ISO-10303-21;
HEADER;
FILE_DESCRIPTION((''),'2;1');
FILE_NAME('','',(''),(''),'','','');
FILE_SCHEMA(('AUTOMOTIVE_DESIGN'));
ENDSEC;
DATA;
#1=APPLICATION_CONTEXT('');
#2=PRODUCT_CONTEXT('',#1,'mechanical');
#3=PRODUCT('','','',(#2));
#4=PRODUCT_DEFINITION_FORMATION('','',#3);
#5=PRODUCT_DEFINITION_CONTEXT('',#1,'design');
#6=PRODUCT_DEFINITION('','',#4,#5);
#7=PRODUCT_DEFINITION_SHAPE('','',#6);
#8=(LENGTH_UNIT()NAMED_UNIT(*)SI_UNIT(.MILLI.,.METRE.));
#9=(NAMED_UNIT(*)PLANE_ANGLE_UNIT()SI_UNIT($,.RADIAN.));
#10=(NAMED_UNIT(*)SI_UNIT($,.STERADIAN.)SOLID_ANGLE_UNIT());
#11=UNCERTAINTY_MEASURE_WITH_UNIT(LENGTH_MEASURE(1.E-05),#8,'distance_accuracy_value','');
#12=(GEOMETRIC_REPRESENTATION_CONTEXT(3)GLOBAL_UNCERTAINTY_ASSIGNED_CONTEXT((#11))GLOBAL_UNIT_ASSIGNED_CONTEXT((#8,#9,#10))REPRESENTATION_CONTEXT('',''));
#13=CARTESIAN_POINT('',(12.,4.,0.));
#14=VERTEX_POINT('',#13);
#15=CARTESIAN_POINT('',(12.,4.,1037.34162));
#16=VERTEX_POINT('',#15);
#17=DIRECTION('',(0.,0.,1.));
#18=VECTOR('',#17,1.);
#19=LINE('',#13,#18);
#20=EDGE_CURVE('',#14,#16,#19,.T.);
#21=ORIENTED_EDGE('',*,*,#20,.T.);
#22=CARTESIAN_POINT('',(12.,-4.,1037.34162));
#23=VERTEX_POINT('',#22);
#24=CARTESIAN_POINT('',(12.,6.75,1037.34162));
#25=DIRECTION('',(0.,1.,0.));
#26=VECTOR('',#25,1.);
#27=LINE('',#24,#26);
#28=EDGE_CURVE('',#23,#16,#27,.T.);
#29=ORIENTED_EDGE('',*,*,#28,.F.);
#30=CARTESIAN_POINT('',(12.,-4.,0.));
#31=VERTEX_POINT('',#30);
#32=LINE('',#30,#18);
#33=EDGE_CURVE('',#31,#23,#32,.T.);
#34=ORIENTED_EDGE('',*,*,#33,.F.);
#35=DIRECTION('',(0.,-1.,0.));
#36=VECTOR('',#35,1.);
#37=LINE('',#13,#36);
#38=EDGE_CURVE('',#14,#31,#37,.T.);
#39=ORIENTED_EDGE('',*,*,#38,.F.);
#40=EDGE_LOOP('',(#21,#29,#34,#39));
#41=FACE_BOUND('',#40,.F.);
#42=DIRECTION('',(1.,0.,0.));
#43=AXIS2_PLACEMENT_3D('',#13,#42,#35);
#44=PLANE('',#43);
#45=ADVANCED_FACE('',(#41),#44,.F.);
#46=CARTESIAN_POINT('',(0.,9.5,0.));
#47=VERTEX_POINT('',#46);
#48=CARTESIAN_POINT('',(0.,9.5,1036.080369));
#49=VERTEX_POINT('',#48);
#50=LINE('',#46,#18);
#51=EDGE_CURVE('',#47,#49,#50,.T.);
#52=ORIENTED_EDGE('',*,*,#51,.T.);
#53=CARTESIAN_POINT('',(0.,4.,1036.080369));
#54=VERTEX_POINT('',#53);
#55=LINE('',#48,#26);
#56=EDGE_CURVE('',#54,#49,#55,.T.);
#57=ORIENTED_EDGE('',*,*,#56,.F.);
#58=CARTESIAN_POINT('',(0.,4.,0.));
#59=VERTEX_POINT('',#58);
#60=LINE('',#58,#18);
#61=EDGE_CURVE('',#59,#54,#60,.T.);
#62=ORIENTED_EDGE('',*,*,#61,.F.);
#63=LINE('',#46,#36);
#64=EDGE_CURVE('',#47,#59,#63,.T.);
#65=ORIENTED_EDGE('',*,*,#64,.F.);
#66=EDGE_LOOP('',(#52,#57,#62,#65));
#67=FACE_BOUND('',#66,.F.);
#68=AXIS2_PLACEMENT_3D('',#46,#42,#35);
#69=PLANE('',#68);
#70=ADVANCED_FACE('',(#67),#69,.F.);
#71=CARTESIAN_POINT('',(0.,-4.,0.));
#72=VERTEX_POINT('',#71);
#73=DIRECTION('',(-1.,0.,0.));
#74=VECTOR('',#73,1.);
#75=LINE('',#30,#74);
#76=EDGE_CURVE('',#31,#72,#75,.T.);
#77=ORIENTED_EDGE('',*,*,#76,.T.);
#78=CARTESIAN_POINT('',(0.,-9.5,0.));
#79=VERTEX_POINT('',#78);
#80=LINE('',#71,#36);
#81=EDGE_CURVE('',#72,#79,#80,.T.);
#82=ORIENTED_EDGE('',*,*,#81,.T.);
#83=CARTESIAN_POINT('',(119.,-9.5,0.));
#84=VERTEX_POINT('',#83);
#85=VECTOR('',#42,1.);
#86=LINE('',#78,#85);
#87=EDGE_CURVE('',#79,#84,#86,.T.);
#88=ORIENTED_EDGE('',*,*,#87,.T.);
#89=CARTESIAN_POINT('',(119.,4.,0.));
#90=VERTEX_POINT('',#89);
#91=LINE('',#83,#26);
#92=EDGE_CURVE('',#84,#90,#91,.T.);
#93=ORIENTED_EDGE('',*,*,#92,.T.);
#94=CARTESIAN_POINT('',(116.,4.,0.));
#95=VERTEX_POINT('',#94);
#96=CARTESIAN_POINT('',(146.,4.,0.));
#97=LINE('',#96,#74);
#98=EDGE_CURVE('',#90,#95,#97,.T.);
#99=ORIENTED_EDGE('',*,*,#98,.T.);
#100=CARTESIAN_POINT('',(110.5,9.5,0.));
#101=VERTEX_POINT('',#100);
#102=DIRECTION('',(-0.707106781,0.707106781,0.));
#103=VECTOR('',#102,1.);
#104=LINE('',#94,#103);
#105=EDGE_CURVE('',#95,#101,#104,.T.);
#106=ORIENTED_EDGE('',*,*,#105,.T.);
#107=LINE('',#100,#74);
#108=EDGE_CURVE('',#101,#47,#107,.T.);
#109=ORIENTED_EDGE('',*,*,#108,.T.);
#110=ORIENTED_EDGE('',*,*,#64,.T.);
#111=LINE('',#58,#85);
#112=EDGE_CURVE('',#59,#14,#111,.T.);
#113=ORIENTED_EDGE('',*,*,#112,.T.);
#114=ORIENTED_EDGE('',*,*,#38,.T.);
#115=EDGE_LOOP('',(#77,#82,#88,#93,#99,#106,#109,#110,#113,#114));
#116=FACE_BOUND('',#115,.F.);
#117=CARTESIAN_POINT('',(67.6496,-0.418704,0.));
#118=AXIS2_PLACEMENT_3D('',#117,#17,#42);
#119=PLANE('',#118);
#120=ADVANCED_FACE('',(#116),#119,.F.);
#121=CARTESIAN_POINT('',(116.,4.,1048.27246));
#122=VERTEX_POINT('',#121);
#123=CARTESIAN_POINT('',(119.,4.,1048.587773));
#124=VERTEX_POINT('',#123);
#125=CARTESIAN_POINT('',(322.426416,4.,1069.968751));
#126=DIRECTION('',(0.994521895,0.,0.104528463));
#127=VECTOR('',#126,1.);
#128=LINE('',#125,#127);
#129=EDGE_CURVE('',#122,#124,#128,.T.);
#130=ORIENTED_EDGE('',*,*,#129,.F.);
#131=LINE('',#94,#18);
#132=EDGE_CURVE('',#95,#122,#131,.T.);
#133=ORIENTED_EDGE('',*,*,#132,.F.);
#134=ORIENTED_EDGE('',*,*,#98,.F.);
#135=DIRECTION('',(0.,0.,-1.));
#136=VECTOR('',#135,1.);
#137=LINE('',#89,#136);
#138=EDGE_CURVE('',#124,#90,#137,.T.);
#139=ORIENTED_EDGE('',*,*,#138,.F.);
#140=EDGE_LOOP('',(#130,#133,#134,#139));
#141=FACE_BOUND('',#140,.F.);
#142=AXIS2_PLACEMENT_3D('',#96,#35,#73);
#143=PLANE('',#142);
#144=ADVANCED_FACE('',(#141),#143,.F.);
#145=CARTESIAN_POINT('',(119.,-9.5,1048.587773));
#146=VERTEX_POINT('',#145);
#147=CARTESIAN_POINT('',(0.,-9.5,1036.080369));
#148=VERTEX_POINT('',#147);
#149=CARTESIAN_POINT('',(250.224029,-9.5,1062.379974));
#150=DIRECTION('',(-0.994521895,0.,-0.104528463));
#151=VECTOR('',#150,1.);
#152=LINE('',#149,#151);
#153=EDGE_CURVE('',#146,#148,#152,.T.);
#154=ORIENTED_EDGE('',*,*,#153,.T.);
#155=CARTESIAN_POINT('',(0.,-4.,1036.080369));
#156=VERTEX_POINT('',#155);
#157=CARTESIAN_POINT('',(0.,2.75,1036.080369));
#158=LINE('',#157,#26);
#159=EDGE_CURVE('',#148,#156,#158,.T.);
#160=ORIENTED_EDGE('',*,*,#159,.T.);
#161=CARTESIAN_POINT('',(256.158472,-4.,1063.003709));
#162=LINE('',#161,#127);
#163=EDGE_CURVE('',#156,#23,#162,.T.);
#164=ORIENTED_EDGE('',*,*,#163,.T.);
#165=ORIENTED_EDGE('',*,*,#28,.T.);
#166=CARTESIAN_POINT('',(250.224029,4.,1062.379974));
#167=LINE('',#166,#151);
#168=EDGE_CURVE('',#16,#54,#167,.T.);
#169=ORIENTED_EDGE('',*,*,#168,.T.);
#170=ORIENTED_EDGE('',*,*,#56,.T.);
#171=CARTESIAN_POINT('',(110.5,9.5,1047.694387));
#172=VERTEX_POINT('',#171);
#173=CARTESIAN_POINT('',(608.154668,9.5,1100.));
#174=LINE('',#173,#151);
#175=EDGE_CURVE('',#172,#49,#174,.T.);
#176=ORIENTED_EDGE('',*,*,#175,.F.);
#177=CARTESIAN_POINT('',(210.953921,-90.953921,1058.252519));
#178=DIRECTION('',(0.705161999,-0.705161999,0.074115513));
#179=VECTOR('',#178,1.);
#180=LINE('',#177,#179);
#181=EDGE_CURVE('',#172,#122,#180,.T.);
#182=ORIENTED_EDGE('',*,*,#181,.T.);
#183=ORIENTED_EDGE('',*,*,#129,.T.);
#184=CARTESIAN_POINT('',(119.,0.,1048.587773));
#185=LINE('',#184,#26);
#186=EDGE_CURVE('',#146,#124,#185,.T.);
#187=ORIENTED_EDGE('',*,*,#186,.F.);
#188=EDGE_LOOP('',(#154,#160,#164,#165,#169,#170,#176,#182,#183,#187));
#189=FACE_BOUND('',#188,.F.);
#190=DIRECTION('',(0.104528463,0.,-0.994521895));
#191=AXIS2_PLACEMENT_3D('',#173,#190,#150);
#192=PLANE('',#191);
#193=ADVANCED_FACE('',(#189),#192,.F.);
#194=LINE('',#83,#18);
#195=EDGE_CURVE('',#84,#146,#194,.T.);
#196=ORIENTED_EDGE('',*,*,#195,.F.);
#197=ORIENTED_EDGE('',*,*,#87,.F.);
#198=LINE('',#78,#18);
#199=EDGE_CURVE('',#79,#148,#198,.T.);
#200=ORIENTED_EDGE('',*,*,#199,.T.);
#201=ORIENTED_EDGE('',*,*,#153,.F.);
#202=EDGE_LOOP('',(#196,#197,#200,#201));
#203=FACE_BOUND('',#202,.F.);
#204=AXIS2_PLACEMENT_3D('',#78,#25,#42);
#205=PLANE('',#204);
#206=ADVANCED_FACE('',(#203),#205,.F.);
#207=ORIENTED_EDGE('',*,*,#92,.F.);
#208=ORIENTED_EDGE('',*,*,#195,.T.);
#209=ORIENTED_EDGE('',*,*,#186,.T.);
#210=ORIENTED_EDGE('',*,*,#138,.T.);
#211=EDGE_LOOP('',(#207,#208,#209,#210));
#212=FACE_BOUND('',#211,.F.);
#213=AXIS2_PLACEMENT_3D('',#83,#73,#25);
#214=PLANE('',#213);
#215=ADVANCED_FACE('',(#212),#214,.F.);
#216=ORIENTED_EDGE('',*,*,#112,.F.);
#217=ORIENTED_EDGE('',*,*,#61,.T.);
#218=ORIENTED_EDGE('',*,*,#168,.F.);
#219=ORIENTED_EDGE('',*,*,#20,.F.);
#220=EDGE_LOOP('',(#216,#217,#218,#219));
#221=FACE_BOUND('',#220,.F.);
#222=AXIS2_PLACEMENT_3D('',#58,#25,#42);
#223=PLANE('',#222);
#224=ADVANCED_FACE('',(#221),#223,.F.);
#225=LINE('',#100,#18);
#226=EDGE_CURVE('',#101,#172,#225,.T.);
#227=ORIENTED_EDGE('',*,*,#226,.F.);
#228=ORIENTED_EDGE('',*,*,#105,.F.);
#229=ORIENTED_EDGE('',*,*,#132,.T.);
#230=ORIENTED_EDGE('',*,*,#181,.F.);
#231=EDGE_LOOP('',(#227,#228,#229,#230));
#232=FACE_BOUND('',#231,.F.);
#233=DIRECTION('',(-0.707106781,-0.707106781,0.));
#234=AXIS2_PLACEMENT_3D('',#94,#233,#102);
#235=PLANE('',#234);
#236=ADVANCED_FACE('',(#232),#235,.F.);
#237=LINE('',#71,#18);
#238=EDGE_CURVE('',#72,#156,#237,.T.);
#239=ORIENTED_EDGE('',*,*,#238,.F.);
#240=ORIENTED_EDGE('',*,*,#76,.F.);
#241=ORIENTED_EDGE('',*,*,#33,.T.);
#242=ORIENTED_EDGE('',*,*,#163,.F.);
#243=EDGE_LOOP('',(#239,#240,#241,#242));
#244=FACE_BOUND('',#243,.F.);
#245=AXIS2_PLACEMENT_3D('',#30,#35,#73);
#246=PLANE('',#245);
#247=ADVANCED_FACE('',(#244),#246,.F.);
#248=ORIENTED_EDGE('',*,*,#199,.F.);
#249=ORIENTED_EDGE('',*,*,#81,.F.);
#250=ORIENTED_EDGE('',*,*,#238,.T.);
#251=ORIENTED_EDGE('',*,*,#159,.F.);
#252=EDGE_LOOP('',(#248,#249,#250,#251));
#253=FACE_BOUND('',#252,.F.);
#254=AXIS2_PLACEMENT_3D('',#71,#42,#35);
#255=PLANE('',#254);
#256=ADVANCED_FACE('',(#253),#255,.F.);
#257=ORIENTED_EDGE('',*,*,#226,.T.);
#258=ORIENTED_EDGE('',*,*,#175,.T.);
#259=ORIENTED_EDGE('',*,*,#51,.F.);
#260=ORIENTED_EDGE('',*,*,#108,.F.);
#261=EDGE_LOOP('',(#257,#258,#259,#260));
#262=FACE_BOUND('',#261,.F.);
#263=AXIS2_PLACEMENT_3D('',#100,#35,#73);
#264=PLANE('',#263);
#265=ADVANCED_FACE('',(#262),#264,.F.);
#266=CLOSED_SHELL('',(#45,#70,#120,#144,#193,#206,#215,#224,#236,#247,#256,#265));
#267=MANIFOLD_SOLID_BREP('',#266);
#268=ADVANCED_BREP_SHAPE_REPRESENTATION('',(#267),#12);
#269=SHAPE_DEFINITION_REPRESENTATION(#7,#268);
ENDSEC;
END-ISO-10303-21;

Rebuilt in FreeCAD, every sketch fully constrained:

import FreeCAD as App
import Part
import Sketcher
from FreeCAD import Vector
Q = App.Units.Quantity


def add_polygon(sketch, points):
    """Adds a closed chain of lines whose ends are joined by coincident constraints."""
    first, n = sketch.GeometryCount, len(points)
    for a, b in zip(points, points[1:] + points[:1]):
        sketch.addGeometry(Part.LineSegment(App.Vector(*a, 0), App.Vector(*b, 0)), False)
    for i in range(n):
        sketch.addConstraint(Sketcher.Constraint("Coincident", first + i, 2, first + (i + 1) % n, 1))

doc = App.newDocument("Part")
body = doc.addObject("PartDesign::Body", "Body")

# Sketch on XY plane
sketch1 = body.newObject("Sketcher::SketchObject", "Sketch")
sketch1.AttachmentSupport = (doc.getObject("XY_Plane"), [""])
sketch1.MapMode = "FlatFace"
add_polygon(sketch1, [(0, -4), (0, -9.5), (136, -9.5), (136, -4), (146, -4), (146, 4), (116, 4), (110.5, 9.5), (0, 9.5), (0, 4), (12, 4), (12, -4)])  # lines 0-11
sketch1.addConstraint([
    Sketcher.Constraint("Vertical", 0),
    Sketcher.Constraint("Horizontal", 1),
    Sketcher.Constraint("Vertical", 2),
    Sketcher.Constraint("Horizontal", 3),
    Sketcher.Constraint("Vertical", 4),
    Sketcher.Constraint("Horizontal", 5),
    Sketcher.Constraint("Horizontal", 7),
    Sketcher.Constraint("Vertical", 8),
    Sketcher.Constraint("Horizontal", 9),
    Sketcher.Constraint("Vertical", 10),
    Sketcher.Constraint("Horizontal", 11),
    Sketcher.Constraint("Symmetric", 0, 2, 7, 2, -1, 1),
    Sketcher.Constraint("Symmetric", 8, 2, 11, 2, -1),
    Sketcher.Constraint("Horizontal", 5, 2, 8, 2),
    Sketcher.Constraint("Horizontal", 3, 2, 10, 2),
    Sketcher.Constraint("DistanceX", 1, 1, 1, 2, 136.0),
    Sketcher.Constraint("DistanceX", 3, 1, 3, 2, 10.0),
    Sketcher.Constraint("DistanceX", 5, 2, 5, 1, 30.0),
    Sketcher.Constraint("DistanceX", 9, 1, 9, 2, 12.0),
    Sketcher.Constraint("DistanceY", 4, 1, 4, 2, 8.0),
    Sketcher.Constraint("Angle", 6, Q("135 deg")),
    Sketcher.Constraint("DistanceX", 7, 2, 7, 1, 110.5),
])
pad1 = body.newObject("PartDesign::Pad", "Pad")
pad1.Profile = sketch1
pad1.Length = 1100

# Sketch on XZ plane
sketch2 = body.newObject("Sketcher::SketchObject", "Sketch001")
sketch2.AttachmentSupport = (doc.getObject("XZ_Plane"), [""])
sketch2.MapMode = "FlatFace"
sketch2.AttachmentOffset = App.Placement(Vector(0, 0, -9.5), App.Rotation())
add_polygon(sketch2, [(608.154668, 1100), (-819, 950), (-819, 1100)])  # lines 0-2
sketch2.addConstraint([
    Sketcher.Constraint("Vertical", 1),
    Sketcher.Constraint("Horizontal", 2),
    Sketcher.Constraint("DistanceY", 1, 1, 1, 2, 150.0),
    Sketcher.Constraint("Angle", 0, Q("-174 deg")),
    Sketcher.Constraint("DistanceX", 0, 2, -1, 1, 819.0),
    Sketcher.Constraint("DistanceY", -1, 1, 0, 2, 950.0),
])
pocket1 = body.newObject("PartDesign::Pocket", "Pocket")
pocket1.Profile = sketch2
pocket1.Type = "ThroughAll"
pocket1.Reversed = True

# Sketch on XY plane
sketch3 = body.newObject("Sketcher::SketchObject", "Sketch002")
sketch3.AttachmentSupport = (doc.getObject("XY_Plane"), [""])
sketch3.MapMode = "FlatFace"
add_polygon(sketch3, [(119, 9.5), (146, 9.5), (146, -9.5), (119, -9.5)])  # lines 0-3
sketch3.addConstraint([
    Sketcher.Constraint("Horizontal", 0),
    Sketcher.Constraint("Vertical", 1),
    Sketcher.Constraint("Horizontal", 2),
    Sketcher.Constraint("Vertical", 3),
    Sketcher.Constraint("DistanceX", 0, 1, 0, 2, 27.0),
    Sketcher.Constraint("DistanceY", 1, 2, 1, 1, 19.0),
    Sketcher.Constraint("DistanceX", -1, 1, 0, 2, 146.0),
    Sketcher.Constraint("DistanceY", -1, 1, 0, 2, 9.5),
])
pocket2 = body.newObject("PartDesign::Pocket", "Pocket001")
pocket2.Profile = sketch3
pocket2.Type = "ThroughAll"
pocket2.Reversed = True

doc.recompute()
